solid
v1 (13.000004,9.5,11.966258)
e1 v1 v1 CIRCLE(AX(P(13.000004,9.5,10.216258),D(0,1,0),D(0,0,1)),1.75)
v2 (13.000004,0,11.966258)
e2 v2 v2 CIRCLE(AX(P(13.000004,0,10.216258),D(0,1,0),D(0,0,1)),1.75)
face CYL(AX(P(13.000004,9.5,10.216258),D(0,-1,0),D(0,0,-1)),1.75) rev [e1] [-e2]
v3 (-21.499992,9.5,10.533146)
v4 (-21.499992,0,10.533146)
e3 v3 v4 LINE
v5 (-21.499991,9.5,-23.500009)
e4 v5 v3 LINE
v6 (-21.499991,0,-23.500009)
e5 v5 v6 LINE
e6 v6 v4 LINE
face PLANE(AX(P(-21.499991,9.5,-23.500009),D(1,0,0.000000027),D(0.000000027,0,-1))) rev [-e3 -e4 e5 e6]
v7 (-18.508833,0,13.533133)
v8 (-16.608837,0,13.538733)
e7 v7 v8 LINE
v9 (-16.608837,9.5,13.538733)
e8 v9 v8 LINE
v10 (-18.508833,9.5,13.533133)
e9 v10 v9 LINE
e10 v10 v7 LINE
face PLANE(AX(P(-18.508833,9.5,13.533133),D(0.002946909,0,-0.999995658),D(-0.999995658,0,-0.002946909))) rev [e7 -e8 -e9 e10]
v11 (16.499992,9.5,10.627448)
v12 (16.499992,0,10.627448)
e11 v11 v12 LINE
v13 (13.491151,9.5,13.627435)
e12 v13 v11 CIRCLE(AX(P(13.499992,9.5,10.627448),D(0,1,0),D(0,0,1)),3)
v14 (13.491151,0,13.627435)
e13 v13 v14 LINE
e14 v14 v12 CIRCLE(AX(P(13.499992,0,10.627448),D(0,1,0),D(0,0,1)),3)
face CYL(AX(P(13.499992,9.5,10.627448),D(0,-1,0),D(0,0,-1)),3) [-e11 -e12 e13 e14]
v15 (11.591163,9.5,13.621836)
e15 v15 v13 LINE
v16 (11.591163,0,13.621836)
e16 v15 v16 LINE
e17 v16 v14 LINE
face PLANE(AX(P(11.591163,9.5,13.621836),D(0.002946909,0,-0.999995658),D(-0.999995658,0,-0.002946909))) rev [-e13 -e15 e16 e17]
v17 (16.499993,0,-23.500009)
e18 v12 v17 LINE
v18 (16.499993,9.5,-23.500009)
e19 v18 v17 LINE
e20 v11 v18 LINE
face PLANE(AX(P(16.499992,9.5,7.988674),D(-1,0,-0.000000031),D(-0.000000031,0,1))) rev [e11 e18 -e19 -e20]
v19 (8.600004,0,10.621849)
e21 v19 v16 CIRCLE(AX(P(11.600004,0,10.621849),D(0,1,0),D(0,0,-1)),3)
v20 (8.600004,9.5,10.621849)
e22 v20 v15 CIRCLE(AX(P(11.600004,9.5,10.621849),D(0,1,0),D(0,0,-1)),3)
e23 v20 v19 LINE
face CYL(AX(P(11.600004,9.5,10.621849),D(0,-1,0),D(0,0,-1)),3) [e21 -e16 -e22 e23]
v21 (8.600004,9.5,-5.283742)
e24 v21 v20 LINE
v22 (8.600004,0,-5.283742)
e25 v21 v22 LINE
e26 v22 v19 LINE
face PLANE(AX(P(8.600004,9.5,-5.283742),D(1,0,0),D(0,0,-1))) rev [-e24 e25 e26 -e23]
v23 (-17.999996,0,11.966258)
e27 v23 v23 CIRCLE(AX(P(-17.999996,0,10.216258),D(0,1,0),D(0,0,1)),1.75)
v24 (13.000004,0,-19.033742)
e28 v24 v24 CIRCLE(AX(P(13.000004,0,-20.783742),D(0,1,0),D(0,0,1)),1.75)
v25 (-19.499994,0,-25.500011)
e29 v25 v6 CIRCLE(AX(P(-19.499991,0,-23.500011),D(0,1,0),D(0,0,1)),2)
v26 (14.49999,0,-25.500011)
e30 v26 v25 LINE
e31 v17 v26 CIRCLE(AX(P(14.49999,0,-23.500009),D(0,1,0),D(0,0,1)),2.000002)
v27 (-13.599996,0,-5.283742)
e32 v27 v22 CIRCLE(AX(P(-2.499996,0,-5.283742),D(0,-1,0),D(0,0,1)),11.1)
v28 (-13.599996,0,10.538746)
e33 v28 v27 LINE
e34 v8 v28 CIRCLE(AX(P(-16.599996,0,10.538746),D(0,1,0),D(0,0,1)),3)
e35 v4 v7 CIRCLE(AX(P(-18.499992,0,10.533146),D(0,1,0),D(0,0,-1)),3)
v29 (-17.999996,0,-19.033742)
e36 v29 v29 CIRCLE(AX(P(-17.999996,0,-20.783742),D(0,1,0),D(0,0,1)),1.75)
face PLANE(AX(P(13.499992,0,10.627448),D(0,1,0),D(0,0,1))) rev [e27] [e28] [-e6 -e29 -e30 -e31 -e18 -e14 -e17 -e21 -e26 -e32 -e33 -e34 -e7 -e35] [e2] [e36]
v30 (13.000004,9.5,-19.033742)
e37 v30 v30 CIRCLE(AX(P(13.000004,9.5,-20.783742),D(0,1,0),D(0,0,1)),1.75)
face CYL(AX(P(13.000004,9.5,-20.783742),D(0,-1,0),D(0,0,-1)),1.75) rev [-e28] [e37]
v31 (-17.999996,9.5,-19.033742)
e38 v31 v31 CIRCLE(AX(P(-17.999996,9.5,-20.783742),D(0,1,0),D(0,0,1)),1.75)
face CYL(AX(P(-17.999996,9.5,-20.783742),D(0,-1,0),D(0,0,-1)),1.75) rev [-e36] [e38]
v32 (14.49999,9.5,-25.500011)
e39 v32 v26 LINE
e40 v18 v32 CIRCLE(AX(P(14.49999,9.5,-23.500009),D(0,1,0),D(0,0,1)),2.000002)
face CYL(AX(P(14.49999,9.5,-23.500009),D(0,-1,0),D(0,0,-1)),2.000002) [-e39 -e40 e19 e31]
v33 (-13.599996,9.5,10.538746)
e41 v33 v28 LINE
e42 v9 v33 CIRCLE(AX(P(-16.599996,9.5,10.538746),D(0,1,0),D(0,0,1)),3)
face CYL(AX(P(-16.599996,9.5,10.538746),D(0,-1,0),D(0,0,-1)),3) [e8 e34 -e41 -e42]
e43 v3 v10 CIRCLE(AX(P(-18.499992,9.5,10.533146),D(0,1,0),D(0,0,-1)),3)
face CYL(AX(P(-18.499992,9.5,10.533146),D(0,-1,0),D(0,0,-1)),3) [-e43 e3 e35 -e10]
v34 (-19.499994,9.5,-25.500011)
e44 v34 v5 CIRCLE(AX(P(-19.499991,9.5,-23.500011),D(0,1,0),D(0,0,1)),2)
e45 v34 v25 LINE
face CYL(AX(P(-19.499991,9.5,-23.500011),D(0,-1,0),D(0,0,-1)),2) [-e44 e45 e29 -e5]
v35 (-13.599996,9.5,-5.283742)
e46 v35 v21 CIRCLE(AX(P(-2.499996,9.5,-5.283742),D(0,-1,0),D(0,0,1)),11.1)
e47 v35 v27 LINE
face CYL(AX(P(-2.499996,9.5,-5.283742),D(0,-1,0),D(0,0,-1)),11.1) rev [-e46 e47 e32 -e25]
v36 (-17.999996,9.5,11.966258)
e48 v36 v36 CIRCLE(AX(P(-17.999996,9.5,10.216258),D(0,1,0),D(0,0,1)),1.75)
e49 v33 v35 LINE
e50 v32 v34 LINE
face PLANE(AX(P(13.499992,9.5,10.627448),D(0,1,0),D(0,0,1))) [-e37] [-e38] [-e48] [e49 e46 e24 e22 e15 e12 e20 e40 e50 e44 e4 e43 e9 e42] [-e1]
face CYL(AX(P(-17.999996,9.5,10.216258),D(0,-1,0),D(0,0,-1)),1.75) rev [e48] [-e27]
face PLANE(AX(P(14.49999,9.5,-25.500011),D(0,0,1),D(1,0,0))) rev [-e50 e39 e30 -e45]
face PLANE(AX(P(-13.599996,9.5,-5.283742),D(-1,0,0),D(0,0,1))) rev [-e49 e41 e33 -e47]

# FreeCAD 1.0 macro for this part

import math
import FreeCAD as App
import Part
import Sketcher

V = App.Vector

doc = App.newDocument("Part")
params = doc.addObject("Spreadsheet::Sheet", "Params")
for row, (alias, value) in enumerate([
    ("sketch1_radius", "3 mm"),
    ("sketch1_radius2", "2.000001 mm"),
    ("sketch1_diameter", "3.5 mm"),
    ("sketch1_radius3", "11.1 mm"),
    ("pad1_length", "9.5 mm"),
], start=1):
    params.set(f"A{row}", alias)
    params.set(f"B{row}", "=" + value)
    params.setAlias(f"B{row}", alias)

body = doc.addObject("PartDesign::Body", "Body")

# Sketch on XZ plane
sketch1 = doc.addObject("Sketcher::SketchObject", "Sketch")
body.addObject(sketch1)
sketch1.AttachmentSupport = (doc.XZ_Plane, [""])
sketch1.MapMode = "FlatFace"
sketch1.addGeometry([
    Part.ArcOfCircle(Part.Circle(V(13.499992, 10.627448, 0), V(0, 0, 1), 3), math.radians(0), math.radians(90.168846)),  # 0
    Part.LineSegment(V(16.499992, 10.627448, 0), V(16.499992, 7.988674, 0)),  # 1
    Part.LineSegment(V(16.499992, 7.988674, 0), V(16.499993, -23.500009, 0)),  # 2
    Part.ArcOfCircle(Part.Circle(V(14.499992, -23.50001, 0), V(0, 0, 1), 2.000001), math.radians(-90.000048), math.radians(0.00002)),  # 3
    Part.LineSegment(V(14.49999, -25.500011, 0), V(-19.499994, -25.500011, 0)),  # 4
    Part.ArcOfCircle(Part.Circle(V(-19.499991, -23.500011, 0), V(0, 0, 1), 2), math.radians(179.999945), math.radians(269.999915)),  # 5
    Part.LineSegment(V(-21.499991, -23.500009, 0), V(-21.499992, 10.533146, 0)),  # 6
    Part.ArcOfCircle(Part.Circle(V(-18.499992, 10.533146, 0), V(0, 0, 1), 3), math.radians(90.168846), math.radians(180.000002)),  # 7
    Part.LineSegment(V(-18.508833, 13.533133, 0), V(-16.608837, 13.538733, 0)),  # 8
    Part.ArcOfCircle(Part.Circle(V(-16.599996, 10.538746, 0), V(0, 0, 1), 3), math.radians(0), math.radians(90.168846)),  # 9
    Part.LineSegment(V(-13.599996, 10.538746, 0), V(-13.599996, -5.283742, 0)),  # 10
    Part.ArcOfCircle(Part.Circle(V(-2.499996, -5.283742, 0), V(0, 0, 1), 11.1), math.radians(180), math.radians(360)),  # 11
    Part.LineSegment(V(8.600004, -5.283742, 0), V(8.600004, 10.621849, 0)),  # 12
    Part.ArcOfCircle(Part.Circle(V(11.600004, 10.621849, 0), V(0, 0, 1), 3), math.radians(90.168846), math.radians(180)),  # 13
    Part.LineSegment(V(11.591163, 13.621836, 0), V(13.491151, 13.627435, 0)),  # 14
    Part.Circle(V(13.000004, 10.216258, 0), V(0, 0, 1), 1.75),  # 15
    Part.Circle(V(-17.999996, 10.216258, 0), V(0, 0, 1), 1.75),  # 16
    Part.Circle(V(13.000004, -20.783742, 0), V(0, 0, 1), 1.75),  # 17
    Part.Circle(V(-17.999996, -20.783742, 0), V(0, 0, 1), 1.75),  # 18
], False)
sketch1.addConstraint([
    Sketcher.Constraint("Tangent", 0, 1, 1, 1),
    Sketcher.Constraint("Coincident", 1, 2, 2, 1),
    Sketcher.Constraint("Tangent", 2, 2, 3, 2),
    Sketcher.Constraint("Tangent", 3, 1, 4, 1),
    Sketcher.Constraint("Tangent", 4, 2, 5, 2),
    Sketcher.Constraint("Tangent", 5, 1, 6, 1),
    Sketcher.Constraint("Tangent", 6, 2, 7, 2),
    Sketcher.Constraint("Tangent", 7, 1, 8, 1),
    Sketcher.Constraint("Tangent", 8, 2, 9, 2),
    Sketcher.Constraint("Tangent", 9, 1, 10, 1),
    Sketcher.Constraint("Tangent", 10, 2, 11, 1),
    Sketcher.Constraint("Tangent", 11, 2, 12, 1),
    Sketcher.Constraint("Tangent", 12, 2, 13, 2),
    Sketcher.Constraint("Tangent", 13, 1, 14, 1),
    Sketcher.Constraint("Tangent", 14, 2, 0, 2),
    Sketcher.Constraint("Vertical", 1),
    Sketcher.Constraint("Vertical", 2),
    Sketcher.Constraint("Horizontal", 4),
    Sketcher.Constraint("Vertical", 6),
    Sketcher.Constraint("Vertical", 10),
    Sketcher.Constraint("Vertical", 12),
    Sketcher.Constraint("Equal", 3, 5),
    Sketcher.Constraint("Equal", 0, 7),
    Sketcher.Constraint("Equal", 7, 9),
    Sketcher.Constraint("Equal", 9, 13),
    Sketcher.Constraint("Equal", 15, 16),
    Sketcher.Constraint("Equal", 16, 17),
    Sketcher.Constraint("Equal", 17, 18),
    Sketcher.Constraint("Parallel", 8, 14),
    Sketcher.Constraint("Horizontal", 15, 3, 16, 3),
    Sketcher.Constraint("Horizontal", 17, 3, 18, 3),
    Sketcher.Constraint("Vertical", 15, 3, 17, 3),
    Sketcher.Constraint("Vertical", 16, 3, 18, 3),
    Sketcher.Constraint("Radius", 0, 3.0),
    Sketcher.Constraint("Radius", 3, 2.000001),
    Sketcher.Constraint("Diameter", 15, 3.5),
    Sketcher.Constraint("Radius", 11, 11.1),
    Sketcher.Constraint("DistanceX", 16, 3, 15, 3, 31.0),
    Sketcher.Constraint("DistanceY", 17, 3, 15, 3, 31.0),
    Sketcher.Constraint("DistanceX", 13, 3, 15, 3, 1.4),
    Sketcher.Constraint("DistanceY", 11, 3, 15, 3, 15.5),
    Sketcher.Constraint("DistanceY", 12, 1, 12, 2, 15.905591),
    Sketcher.Constraint("DistanceY", 7, 3, 0, 3, 0.094301),
    Sketcher.Constraint("DistanceY", 7, 3, 9, 3, 0.005599),
    Sketcher.Constraint("DistanceX", 4, 2, 4, 1, 33.999984),
    Sketcher.Constraint("DistanceY", 1, 2, 1, 1, 2.638774),
    Sketcher.Constraint("DistanceY", 2, 2, 2, 1, 31.488683),
    Sketcher.Constraint("DistanceX", -1, 1, 3, 3, 14.499992),
    Sketcher.Constraint("DistanceY", 3, 3, -1, 1, 23.50001),
    Sketcher.Constraint("DistanceX", 9, 3, 0, 3, 30.099988),
])
sketch1.setExpression("Constraints[33]", "Params.sketch1_radius")
sketch1.setExpression("Constraints[34]", "Params.sketch1_radius2")
sketch1.setExpression("Constraints[35]", "Params.sketch1_diameter")
sketch1.setExpression("Constraints[36]", "Params.sketch1_radius3")
pad1 = doc.addObject("PartDesign::Pad", "Pad")
body.addObject(pad1)
pad1.Profile = sketch1
pad1.setExpression("Length", "Params.pad1_length")
pad1.Reversed = True

doc.recompute()
